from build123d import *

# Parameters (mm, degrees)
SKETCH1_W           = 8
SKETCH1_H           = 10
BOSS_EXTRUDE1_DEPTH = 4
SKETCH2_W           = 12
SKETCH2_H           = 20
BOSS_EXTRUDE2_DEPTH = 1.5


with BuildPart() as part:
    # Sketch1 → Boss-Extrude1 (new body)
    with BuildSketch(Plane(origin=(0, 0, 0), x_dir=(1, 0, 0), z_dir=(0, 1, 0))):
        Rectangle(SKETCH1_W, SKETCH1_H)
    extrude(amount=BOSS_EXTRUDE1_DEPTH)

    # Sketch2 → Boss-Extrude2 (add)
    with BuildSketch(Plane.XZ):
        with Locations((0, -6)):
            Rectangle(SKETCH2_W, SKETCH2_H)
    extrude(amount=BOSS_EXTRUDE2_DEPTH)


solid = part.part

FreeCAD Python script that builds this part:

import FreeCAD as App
import Part
import Sketcher
Q = App.Units.Quantity


def add_polygon(sketch, points):
    """Adds a closed chain of lines whose ends are joined by coincident constraints."""
    first, n = sketch.GeometryCount, len(points)
    for a, b in zip(points, points[1:] + points[:1]):
        sketch.addGeometry(Part.LineSegment(App.Vector(*a, 0), App.Vector(*b, 0)), False)
    for i in range(n):
        sketch.addConstraint(Sketcher.Constraint("Coincident", first + i, 2, first + (i + 1) % n, 1))

doc = App.newDocument("Part")
body = doc.addObject("PartDesign::Body", "Body")

# Sketch on XZ plane
sketch1 = doc.addObject("Sketcher::SketchObject", "Sketch")
body.addObject(sketch1)
sketch1.AttachmentSupport = (doc.XZ_Plane, [""])
sketch1.MapMode = "FlatFace"
add_polygon(sketch1, [(-4, -5), (-4, 5), (4, 5), (4, -5)])  # lines 0-3
sketch1.addConstraint([
    Sketcher.Constraint("Vertical", 0),
    Sketcher.Constraint("Horizontal", 1),
    Sketcher.Constraint("Vertical", 2),
    Sketcher.Constraint("Horizontal", 3),
    Sketcher.Constraint("Symmetric", 0, 2, 2, 2, -1, 1),
    Sketcher.Constraint("DistanceX", 1, 1, 1, 2, Q("8 mm")),
    Sketcher.Constraint("DistanceY", 0, 1, 0, 2, Q("10 mm")),
])
pad1 = doc.addObject("PartDesign::Pad", "Pad")
body.addObject(pad1)
pad1.Profile = sketch1
pad1.Length = 4
pad1.Reversed = True

# Sketch on XZ plane
sketch2 = doc.addObject("Sketcher::SketchObject", "Sketch001")
body.addObject(sketch2)
sketch2.AttachmentSupport = (doc.XZ_Plane, [""])
sketch2.MapMode = "FlatFace"
add_polygon(sketch2, [(-6, 4), (-6, -16), (6, -16), (6, 4)])  # lines 0-3
sketch2.addConstraint([
    Sketcher.Constraint("Vertical", 0),
    Sketcher.Constraint("Horizontal", 1),
    Sketcher.Constraint("Vertical", 2),
    Sketcher.Constraint("Horizontal", 3),
    Sketcher.Constraint("DistanceX", 1, 1, 1, 2, Q("12 mm")),
    Sketcher.Constraint("DistanceY", 0, 2, 0, 1, Q("20 mm")),
    Sketcher.Constraint("DistanceX", 0, 2, -1, 1, Q("6 mm")),
    Sketcher.Constraint("DistanceY", 0, 2, -1, 1, Q("16 mm")),
])
pad2 = doc.addObject("PartDesign::Pad", "Pad001")
body.addObject(pad2)
pad2.Profile = sketch2
pad2.Length = 1.5

doc.recompute()
